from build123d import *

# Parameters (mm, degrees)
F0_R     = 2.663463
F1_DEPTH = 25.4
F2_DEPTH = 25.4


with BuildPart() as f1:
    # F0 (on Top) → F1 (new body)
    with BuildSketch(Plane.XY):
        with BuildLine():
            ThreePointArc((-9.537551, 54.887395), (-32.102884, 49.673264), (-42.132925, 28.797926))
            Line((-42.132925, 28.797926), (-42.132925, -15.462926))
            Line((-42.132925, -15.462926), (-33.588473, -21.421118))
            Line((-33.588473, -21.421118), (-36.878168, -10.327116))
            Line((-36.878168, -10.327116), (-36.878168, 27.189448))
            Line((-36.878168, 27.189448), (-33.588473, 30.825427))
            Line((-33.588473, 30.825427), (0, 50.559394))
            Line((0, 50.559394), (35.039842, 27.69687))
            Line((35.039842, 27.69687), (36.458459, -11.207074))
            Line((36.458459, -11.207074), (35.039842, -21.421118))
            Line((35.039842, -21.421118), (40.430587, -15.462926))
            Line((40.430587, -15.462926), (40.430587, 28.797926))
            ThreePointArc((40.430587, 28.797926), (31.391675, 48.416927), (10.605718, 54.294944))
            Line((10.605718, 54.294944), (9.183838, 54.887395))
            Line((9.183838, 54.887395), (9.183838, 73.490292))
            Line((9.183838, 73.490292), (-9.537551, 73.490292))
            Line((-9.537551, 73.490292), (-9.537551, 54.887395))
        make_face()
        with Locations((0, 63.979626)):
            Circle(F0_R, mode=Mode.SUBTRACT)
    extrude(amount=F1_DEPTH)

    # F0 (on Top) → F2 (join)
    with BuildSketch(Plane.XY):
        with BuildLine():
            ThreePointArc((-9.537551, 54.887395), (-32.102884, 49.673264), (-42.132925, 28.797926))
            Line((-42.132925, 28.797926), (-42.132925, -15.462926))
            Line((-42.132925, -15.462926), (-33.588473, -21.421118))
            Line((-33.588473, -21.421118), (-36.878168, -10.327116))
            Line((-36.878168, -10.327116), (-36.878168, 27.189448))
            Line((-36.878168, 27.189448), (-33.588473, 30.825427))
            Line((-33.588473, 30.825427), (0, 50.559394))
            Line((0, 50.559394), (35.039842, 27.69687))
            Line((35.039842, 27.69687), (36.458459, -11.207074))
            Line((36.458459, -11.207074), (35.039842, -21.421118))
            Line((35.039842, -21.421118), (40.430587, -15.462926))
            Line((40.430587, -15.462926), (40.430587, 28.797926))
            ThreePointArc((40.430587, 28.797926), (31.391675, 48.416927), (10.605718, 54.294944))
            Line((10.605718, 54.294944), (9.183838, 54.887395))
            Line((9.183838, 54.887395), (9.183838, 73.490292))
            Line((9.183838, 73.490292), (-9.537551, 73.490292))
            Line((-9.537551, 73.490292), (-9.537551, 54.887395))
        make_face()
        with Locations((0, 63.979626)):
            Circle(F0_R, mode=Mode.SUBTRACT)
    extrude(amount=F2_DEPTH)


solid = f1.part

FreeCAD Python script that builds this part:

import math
import FreeCAD as App
import Part
import Sketcher

V = App.Vector
Q = App.Units.Quantity

doc = App.newDocument("Part")
params = doc.addObject("Spreadsheet::Sheet", "Params")
for row, (alias, value) in enumerate([
    ("pad1_length", "1 in"),
    ("pad2_length", "1 in"),
], start=1):
    params.set(f"A{row}", alias)
    params.set(f"B{row}", "=" + value)
    params.setAlias(f"B{row}", alias)

body = doc.addObject("PartDesign::Body", "Body")

# Sketch on XY plane
sketch1 = doc.addObject("Sketcher::SketchObject", "Sketch")
body.addObject(sketch1)
sketch1.AttachmentSupport = (doc.XY_Plane, [""])
sketch1.MapMode = "FlatFace"
sketch1.addGeometry(Part.ArcOfCircle(Part.Circle(V(-15.4, 28.8, 0), V(0, 0, 1), 26.7), math.radians(77), math.radians(180)), False)
sketch1.addGeometry(Part.LineSegment(V(-42.1, 28.8, 0), V(-42.1, -15.5, 0)), False)
sketch1.addGeometry(Part.LineSegment(V(-42.1, -15.5, 0), V(-33.6, -21.4, 0)), False)
sketch1.addGeometry(Part.LineSegment(V(-33.6, -21.4, 0), V(-36.9, -10.3, 0)), False)
sketch1.addGeometry(Part.LineSegment(V(-36.9, -10.3, 0), V(-36.9, 27.2, 0)), False)
sketch1.addGeometry(Part.LineSegment(V(-36.9, 27.2, 0), V(-33.6, 30.8, 0)), False)
sketch1.addGeometry(Part.LineSegment(V(-33.6, 30.8, 0), V(0, 50.6, 0)), False)
sketch1.addGeometry(Part.LineSegment(V(0, 50.6, 0), V(35, 27.7, 0)), False)
sketch1.addGeometry(Part.LineSegment(V(35, 27.7, 0), V(36.5, -11.2, 0)), False)
sketch1.addGeometry(Part.LineSegment(V(36.5, -11.2, 0), V(35, -21.4, 0)), False)
sketch1.addGeometry(Part.LineSegment(V(35, -21.4, 0), V(40.4, -15.5, 0)), False)
sketch1.addGeometry(Part.LineSegment(V(40.4, -15.5, 0), V(40.4, 28.8, 0)), False)
sketch1.addGeometry(Part.ArcOfCircle(Part.Circle(V(14.6, 28.8, 0), V(0, 0, 1), 25.8), math.radians(0), math.radians(99)), False)
sketch1.addGeometry(Part.LineSegment(V(10.6, 54.3, 0), V(9.2, 54.9, 0)), False)
sketch1.addGeometry(Part.LineSegment(V(9.2, 54.9, 0), V(9.2, 73.5, 0)), False)
sketch1.addGeometry(Part.LineSegment(V(9.2, 73.5, 0), V(-9.5, 73.5, 0)), False)
sketch1.addGeometry(Part.LineSegment(V(-9.5, 73.5, 0), V(-9.5, 54.9, 0)), False)
sketch1.addGeometry(Part.Circle(V(0, 64, 0), V(0, 0, 1), 2.7), False)
sketch1.addConstraint(Sketcher.Constraint("Tangent", 0, 2, 1, 1))
sketch1.addConstraint(Sketcher.Constraint("Coincident", 1, 2, 2, 1))
sketch1.addConstraint(Sketcher.Constraint("Coincident", 2, 2, 3, 1))
sketch1.addConstraint(Sketcher.Constraint("Coincident", 3, 2, 4, 1))
sketch1.addConstraint(Sketcher.Constraint("Coincident", 4, 2, 5, 1))
sketch1.addConstraint(Sketcher.Constraint("Coincident", 5, 2, 6, 1))
sketch1.addConstraint(Sketcher.Constraint("Coincident", 6, 2, 7, 1))
sketch1.addConstraint(Sketcher.Constraint("Coincident", 7, 2, 8, 1))
sketch1.addConstraint(Sketcher.Constraint("Coincident", 8, 2, 9, 1))
sketch1.addConstraint(Sketcher.Constraint("Coincident", 9, 2, 10, 1))
sketch1.addConstraint(Sketcher.Constraint("Coincident", 10, 2, 11, 1))
sketch1.addConstraint(Sketcher.Constraint("Tangent", 11, 2, 12, 1))
sketch1.addConstraint(Sketcher.Constraint("Coincident", 12, 2, 13, 1))
sketch1.addConstraint(Sketcher.Constraint("Coincident", 13, 2, 14, 1))
sketch1.addConstraint(Sketcher.Constraint("Coincident", 14, 2, 15, 1))
sketch1.addConstraint(Sketcher.Constraint("Coincident", 15, 2, 16, 1))
sketch1.addConstraint(Sketcher.Constraint("Coincident", 16, 2, 0, 1))
sketch1.addConstraint(Sketcher.Constraint("Vertical", 1))
sketch1.addConstraint(Sketcher.Constraint("Vertical", 4))
sketch1.addConstraint(Sketcher.Constraint("Vertical", 11))
sketch1.addConstraint(Sketcher.Constraint("Vertical", 14))
sketch1.addConstraint(Sketcher.Constraint("Horizontal", 15))
sketch1.addConstraint(Sketcher.Constraint("Vertical", 16))
sketch1.addConstraint(Sketcher.Constraint("PointOnObject", 17, 3, -2))
sketch1.addConstraint(Sketcher.Constraint("PointOnObject", 6, 2, -2))
sketch1.addConstraint(Sketcher.Constraint("Parallel", 5, 10))
sketch1.addConstraint(Sketcher.Constraint("Horizontal", 0, 3, 12, 3))
sketch1.addConstraint(Sketcher.Constraint("Horizontal", 2, 2, 9, 2))
sketch1.addConstraint(Sketcher.Constraint("Horizontal", 1, 2, 10, 2))
sketch1.addConstraint(Sketcher.Constraint("Horizontal", 13, 2, 16, 2))
sketch1.addConstraint(Sketcher.Constraint("Vertical", 2, 2, 5, 2))
sketch1.addConstraint(Sketcher.Constraint("Vertical", 7, 2, 9, 2))
sketch1.addConstraint(Sketcher.Constraint("DistanceY", 8, 2, 12, 3, Q("1.575 in")))
sketch1.addConstraint(Sketcher.Constraint("Diameter", 17, 5.326926))
sketch1.addConstraint(Sketcher.Constraint("Radius", 0, 26.738744))
sketch1.addConstraint(Sketcher.Constraint("Radius", 12, 25.811022))
sketch1.addConstraint(Sketcher.Constraint("Distance", 8, 38.9298))
sketch1.addConstraint(Sketcher.Constraint("DistanceX", 15, 2, 15, 1, 18.721389))
sketch1.addConstraint(Sketcher.Constraint("DistanceY", 12, 3, 17, 3, 35.1817))
sketch1.addConstraint(Sketcher.Constraint("DistanceY", 0, 2, 5, 2, 2.027501))
sketch1.addConstraint(Sketcher.Constraint("DistanceX", 0, 3, 12, 2, 25.999899))
sketch1.addConstraint(Sketcher.Constraint("DistanceY", 6, 2, 13, 2, 4.328001))
sketch1.addConstraint(Sketcher.Constraint("Distance", 5, 4.903309))
sketch1.addConstraint(Sketcher.Constraint("Distance", 6, 38.956578))
sketch1.addConstraint(Sketcher.Constraint("Distance", 9, 10.312088))
sketch1.addConstraint(Sketcher.Constraint("Distance", 13, 1.54037))
sketch1.addConstraint(Sketcher.Constraint("DistanceY", 1, 2, 1, 1, 44.260852))
sketch1.addConstraint(Sketcher.Constraint("DistanceY", 4, 1, 4, 2, 37.516564))
sketch1.addConstraint(Sketcher.Constraint("DistanceY", 14, 1, 14, 2, 18.602897))
sketch1.addConstraint(Sketcher.Constraint("DistanceX", 0, 3, -1, 1, 15.394181))
sketch1.addConstraint(Sketcher.Constraint("DistanceY", 2, 2, -1, 1, 21.421118))
sketch1.addConstraint(Sketcher.Constraint("DistanceX", 3, 2, -1, 1, 36.878168))
sketch1.addConstraint(Sketcher.Constraint("DistanceY", -1, 1, 7, 2, 27.69687))
sketch1.addConstraint(Sketcher.Constraint("DistanceX", -1, 1, 8, 2, 36.458459))
pad1 = doc.addObject("PartDesign::Pad", "Pad")
body.addObject(pad1)
pad1.Profile = sketch1
pad1.setExpression("Length", "Params.pad1_length")

# Sketch on XY plane
sketch2 = doc.addObject("Sketcher::SketchObject", "Sketch001")
body.addObject(sketch2)
sketch2.AttachmentSupport = (doc.XY_Plane, [""])
sketch2.MapMode = "FlatFace"
sketch2.addGeometry(Part.ArcOfCircle(Part.Circle(V(-15.4, 28.8, 0), V(0, 0, 1), 26.7), math.radians(77), math.radians(180)), False)
sketch2.addGeometry(Part.LineSegment(V(-42.1, 28.8, 0), V(-42.1, -15.5, 0)), False)
sketch2.addGeometry(Part.LineSegment(V(-42.1, -15.5, 0), V(-33.6, -21.4, 0)), False)
sketch2.addGeometry(Part.LineSegment(V(-33.6, -21.4, 0), V(-36.9, -10.3, 0)), False)
sketch2.addGeometry(Part.LineSegment(V(-36.9, -10.3, 0), V(-36.9, 27.2, 0)), False)
sketch2.addGeometry(Part.LineSegment(V(-36.9, 27.2, 0), V(-33.6, 30.8, 0)), False)
sketch2.addGeometry(Part.LineSegment(V(-33.6, 30.8, 0), V(0, 50.6, 0)), False)
sketch2.addGeometry(Part.LineSegment(V(0, 50.6, 0), V(35, 27.7, 0)), False)
sketch2.addGeometry(Part.LineSegment(V(35, 27.7, 0), V(36.5, -11.2, 0)), False)
sketch2.addGeometry(Part.LineSegment(V(36.5, -11.2, 0), V(35, -21.4, 0)), False)
sketch2.addGeometry(Part.LineSegment(V(35, -21.4, 0), V(40.4, -15.5, 0)), False)
sketch2.addGeometry(Part.LineSegment(V(40.4, -15.5, 0), V(40.4, 28.8, 0)), False)
sketch2.addGeometry(Part.ArcOfCircle(Part.Circle(V(14.6, 28.8, 0), V(0, 0, 1), 25.8), math.radians(0), math.radians(99)), False)
sketch2.addGeometry(Part.LineSegment(V(10.6, 54.3, 0), V(9.2, 54.9, 0)), False)
sketch2.addGeometry(Part.LineSegment(V(9.2, 54.9, 0), V(9.2, 73.5, 0)), False)
sketch2.addGeometry(Part.LineSegment(V(9.2, 73.5, 0), V(-9.5, 73.5, 0)), False)
sketch2.addGeometry(Part.LineSegment(V(-9.5, 73.5, 0), V(-9.5, 54.9, 0)), False)
sketch2.addGeometry(Part.Circle(V(0, 64, 0), V(0, 0, 1), 2.7), False)
sketch2.addConstraint(Sketcher.Constraint("Tangent", 0, 2, 1, 1))
sketch2.addConstraint(Sketcher.Constraint("Coincident", 1, 2, 2, 1))
sketch2.addConstraint(Sketcher.Constraint("Coincident", 2, 2, 3, 1))
sketch2.addConstraint(Sketcher.Constraint("Coincident", 3, 2, 4, 1))
sketch2.addConstraint(Sketcher.Constraint("Coincident", 4, 2, 5, 1))
sketch2.addConstraint(Sketcher.Constraint("Coincident", 5, 2, 6, 1))
sketch2.addConstraint(Sketcher.Constraint("Coincident", 6, 2, 7, 1))
sketch2.addConstraint(Sketcher.Constraint("Coincident", 7, 2, 8, 1))
sketch2.addConstraint(Sketcher.Constraint("Coincident", 8, 2, 9, 1))
sketch2.addConstraint(Sketcher.Constraint("Coincident", 9, 2, 10, 1))
sketch2.addConstraint(Sketcher.Constraint("Coincident", 10, 2, 11, 1))
sketch2.addConstraint(Sketcher.Constraint("Tangent", 11, 2, 12, 1))
sketch2.addConstraint(Sketcher.Constraint("Coincident", 12, 2, 13, 1))
sketch2.addConstraint(Sketcher.Constraint("Coincident", 13, 2, 14, 1))
sketch2.addConstraint(Sketcher.Constraint("Coincident", 14, 2, 15, 1))
sketch2.addConstraint(Sketcher.Constraint("Coincident", 15, 2, 16, 1))
sketch2.addConstraint(Sketcher.Constraint("Coincident", 16, 2, 0, 1))
sketch2.addConstraint(Sketcher.Constraint("Vertical", 1))
sketch2.addConstraint(Sketcher.Constraint("Vertical", 4))
sketch2.addConstraint(Sketcher.Constraint("Vertical", 11))
sketch2.addConstraint(Sketcher.Constraint("Vertical", 14))
sketch2.addConstraint(Sketcher.Constraint("Horizontal", 15))
sketch2.addConstraint(Sketcher.Constraint("Vertical", 16))
sketch2.addConstraint(Sketcher.Constraint("PointOnObject", 17, 3, -2))
sketch2.addConstraint(Sketcher.Constraint("PointOnObject", 6, 2, -2))
sketch2.addConstraint(Sketcher.Constraint("Parallel", 5, 10))
sketch2.addConstraint(Sketcher.Constraint("Horizontal", 0, 3, 12, 3))
sketch2.addConstraint(Sketcher.Constraint("Horizontal", 2, 2, 9, 2))
sketch2.addConstraint(Sketcher.Constraint("Horizontal", 1, 2, 10, 2))
sketch2.addConstraint(Sketcher.Constraint("Horizontal", 13, 2, 16, 2))
sketch2.addConstraint(Sketcher.Constraint("Vertical", 2, 2, 5, 2))
sketch2.addConstraint(Sketcher.Constraint("Vertical", 7, 2, 9, 2))
sketch2.addConstraint(Sketcher.Constraint("DistanceY", 8, 2, 12, 3, Q("1.575 in")))
sketch2.addConstraint(Sketcher.Constraint("Diameter", 17, 5.326926))
sketch2.addConstraint(Sketcher.Constraint("Radius", 0, 26.738744))
sketch2.addConstraint(Sketcher.Constraint("Radius", 12, 25.811022))
sketch2.addConstraint(Sketcher.Constraint("Distance", 8, 38.9298))
sketch2.addConstraint(Sketcher.Constraint("DistanceX", 15, 2, 15, 1, 18.721389))
sketch2.addConstraint(Sketcher.Constraint("DistanceY", 12, 3, 17, 3, 35.1817))
sketch2.addConstraint(Sketcher.Constraint("DistanceY", 0, 2, 5, 2, 2.027501))
sketch2.addConstraint(Sketcher.Constraint("DistanceX", 0, 3, 12, 2, 25.999899))
sketch2.addConstraint(Sketcher.Constraint("DistanceY", 6, 2, 13, 2, 4.328001))
sketch2.addConstraint(Sketcher.Constraint("Distance", 5, 4.903309))
sketch2.addConstraint(Sketcher.Constraint("Distance", 6, 38.956578))
sketch2.addConstraint(Sketcher.Constraint("Distance", 9, 10.312088))
sketch2.addConstraint(Sketcher.Constraint("Distance", 13, 1.54037))
sketch2.addConstraint(Sketcher.Constraint("DistanceY", 1, 2, 1, 1, 44.260852))
sketch2.addConstraint(Sketcher.Constraint("DistanceY", 4, 1, 4, 2, 37.516564))
sketch2.addConstraint(Sketcher.Constraint("DistanceY", 14, 1, 14, 2, 18.602897))
sketch2.addConstraint(Sketcher.Constraint("DistanceX", 0, 3, -1, 1, 15.394181))
sketch2.addConstraint(Sketcher.Constraint("DistanceY", 2, 2, -1, 1, 21.421118))
sketch2.addConstraint(Sketcher.Constraint("DistanceX", 3, 2, -1, 1, 36.878168))
sketch2.addConstraint(Sketcher.Constraint("DistanceY", -1, 1, 7, 2, 27.69687))
sketch2.addConstraint(Sketcher.Constraint("DistanceX", -1, 1, 8, 2, 36.458459))
pad2 = doc.addObject("PartDesign::Pad", "Pad001")
body.addObject(pad2)
pad2.Profile = sketch2
pad2.setExpression("Length", "Params.pad2_length")

doc.recompute()
